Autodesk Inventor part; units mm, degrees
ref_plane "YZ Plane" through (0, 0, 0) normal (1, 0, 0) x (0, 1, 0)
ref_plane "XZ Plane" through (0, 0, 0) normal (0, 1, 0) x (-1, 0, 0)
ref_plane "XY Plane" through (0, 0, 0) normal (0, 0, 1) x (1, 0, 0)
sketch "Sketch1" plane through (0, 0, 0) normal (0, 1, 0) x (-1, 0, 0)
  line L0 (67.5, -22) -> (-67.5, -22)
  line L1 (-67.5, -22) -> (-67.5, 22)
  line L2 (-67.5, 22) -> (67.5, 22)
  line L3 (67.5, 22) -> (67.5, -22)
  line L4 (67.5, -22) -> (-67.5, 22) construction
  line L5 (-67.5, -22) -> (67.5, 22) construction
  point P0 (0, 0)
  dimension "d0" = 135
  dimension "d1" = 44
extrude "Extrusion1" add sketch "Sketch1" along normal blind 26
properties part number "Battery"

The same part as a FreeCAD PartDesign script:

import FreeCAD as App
import Part
import Sketcher
Q = App.Units.Quantity


def add_polygon(sketch, points):
    """Adds a closed chain of lines whose ends are joined by coincident constraints."""
    first, n = sketch.GeometryCount, len(points)
    for a, b in zip(points, points[1:] + points[:1]):
        sketch.addGeometry(Part.LineSegment(App.Vector(*a, 0), App.Vector(*b, 0)), False)
    for i in range(n):
        sketch.addConstraint(Sketcher.Constraint("Coincident", first + i, 2, first + (i + 1) % n, 1))

doc = App.newDocument("Part")
params = doc.addObject("Spreadsheet::Sheet", "Params")
for row, (alias, value) in enumerate([
    ("sketch1_width", "135 mm"),
    ("sketch1_height", "44 mm"),
    ("pad1_length", "26 mm"),
], start=1):
    params.set(f"A{row}", alias)
    params.set(f"B{row}", "=" + value)
    params.setAlias(f"B{row}", alias)

body = doc.addObject("PartDesign::Body", "Body")

sketch1 = doc.addObject("Sketcher::SketchObject", "Sketch")
body.addObject(sketch1)
sketch1.AttachmentSupport = (doc.XZ_Plane, [""])
sketch1.MapMode = "FlatFace"
add_polygon(sketch1, [(68, -22), (-68, -22), (-68, 22), (68, 22)])
sketch1.addConstraint(Sketcher.Constraint("Horizontal", 0))
sketch1.addConstraint(Sketcher.Constraint("Vertical", 1))
sketch1.addConstraint(Sketcher.Constraint("Horizontal", 2))
sketch1.addConstraint(Sketcher.Constraint("Vertical", 3))
sketch1.addConstraint(Sketcher.Constraint("Symmetric", 0, 2, 2, 2, -1, 1))
sketch1.addConstraint(Sketcher.Constraint("DistanceX", 0, 2, 0, 1, Q("135 mm")))
sketch1.addConstraint(Sketcher.Constraint("DistanceY", 1, 1, 1, 2, Q("44 mm")))
sketch1.setExpression("Constraints[9]", "Params.sketch1_width")
sketch1.setExpression("Constraints[10]", "Params.sketch1_height")
pad1 = doc.addObject("PartDesign::Pad", "Pad")
body.addObject(pad1)
pad1.Profile = sketch1
pad1.setExpression("Length", "Params.pad1_length")
pad1.Reversed = True

doc.recompute()
